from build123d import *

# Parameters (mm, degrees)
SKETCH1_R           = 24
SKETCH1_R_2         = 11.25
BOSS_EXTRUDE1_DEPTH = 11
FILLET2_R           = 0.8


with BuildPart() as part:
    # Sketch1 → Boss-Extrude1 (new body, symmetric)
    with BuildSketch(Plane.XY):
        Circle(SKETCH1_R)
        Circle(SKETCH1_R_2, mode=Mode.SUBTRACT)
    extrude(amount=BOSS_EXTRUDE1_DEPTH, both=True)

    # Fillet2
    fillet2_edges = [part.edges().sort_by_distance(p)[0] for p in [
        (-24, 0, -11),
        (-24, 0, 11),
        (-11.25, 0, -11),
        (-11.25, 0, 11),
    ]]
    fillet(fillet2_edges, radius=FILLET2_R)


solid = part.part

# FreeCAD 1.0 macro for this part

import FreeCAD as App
import Part
import Sketcher
from FreeCAD import Vector
Q = App.Units.Quantity


def edges_at(feature, points):
    """Names of the edges that pass closest to the given points."""
    edges = feature.Shape.Edges
    near = lambda p: min(range(len(edges)), key=lambda i: edges[i].distToShape(Part.Vertex(*p))[0])
    return sorted({f"Edge{near(p) + 1}" for p in points})

doc = App.newDocument("Part")
params = doc.addObject("Spreadsheet::Sheet", "Params")
for row, (alias, value) in enumerate([
    ("sketch1_diameter", "48 mm"),
    ("sketch1_diameter2", "22.5 mm"),
    ("pad1_length", "22 mm"),
    ("fillet_radius", "0.8 mm"),
], start=1):
    params.set(f"A{row}", alias)
    params.set(f"B{row}", "=" + value)
    params.setAlias(f"B{row}", alias)

body = doc.addObject("PartDesign::Body", "Body")

sketch1 = doc.addObject("Sketcher::SketchObject", "Sketch")
body.addObject(sketch1)
sketch1.AttachmentSupport = (doc.XY_Plane, [""])
sketch1.MapMode = "FlatFace"
sketch1.addGeometry(Part.Circle(Vector(0, 0, 0), Vector(0, 0, 1), 24), False)
sketch1.addGeometry(Part.Circle(Vector(0, 0, 0), Vector(0, 0, 1), 11.25), False)
sketch1.addConstraint(Sketcher.Constraint("Coincident", 0, 3, -1, 1))
sketch1.addConstraint(Sketcher.Constraint("Coincident", 1, 3, -1, 1))
sketch1.addConstraint(Sketcher.Constraint("Diameter", 0, Q("48 mm")))
sketch1.addConstraint(Sketcher.Constraint("Diameter", 1, Q("22.5 mm")))
sketch1.setExpression("Constraints[2]", "Params.sketch1_diameter")
sketch1.setExpression("Constraints[3]", "Params.sketch1_diameter2")
pad1 = doc.addObject("PartDesign::Pad", "Pad")
body.addObject(pad1)
pad1.Profile = sketch1
pad1.setExpression("Length", "Params.pad1_length")
pad1.Midplane = True
doc.recompute()

fillet = doc.addObject("PartDesign::Fillet", "Fillet")
body.addObject(fillet)
fillet.Base = (pad1, edges_at(pad1, [
    (-24, 0, -11),
    (-24, 0, 11),
    (-11.25, 0, -11),
    (-11.25, 0, 11),
]))
fillet.setExpression("Radius", "Params.fillet_radius")

doc.recompute()
